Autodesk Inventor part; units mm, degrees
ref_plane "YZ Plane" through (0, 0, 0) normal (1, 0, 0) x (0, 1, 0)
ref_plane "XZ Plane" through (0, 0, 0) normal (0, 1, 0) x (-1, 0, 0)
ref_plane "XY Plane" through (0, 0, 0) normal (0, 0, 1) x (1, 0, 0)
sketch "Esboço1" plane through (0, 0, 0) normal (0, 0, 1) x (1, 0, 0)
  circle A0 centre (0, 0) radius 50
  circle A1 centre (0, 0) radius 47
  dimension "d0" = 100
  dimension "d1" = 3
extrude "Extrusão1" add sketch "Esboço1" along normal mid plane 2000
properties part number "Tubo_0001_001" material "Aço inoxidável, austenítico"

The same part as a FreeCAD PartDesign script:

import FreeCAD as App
import Part
import Sketcher
from FreeCAD import Vector
Q = App.Units.Quantity

doc = App.newDocument("Part")
body = doc.addObject("PartDesign::Body", "Body")

# Sketch on XY plane
sketch1 = body.newObject("Sketcher::SketchObject", "Sketch")
sketch1.AttachmentSupport = (doc.getObject("XY_Plane"), [""])
sketch1.MapMode = "FlatFace"
sketch1.addGeometry(Part.Circle(Vector(0, 0, 0), Vector(0, 0, 1), 50), False)
sketch1.addGeometry(Part.Circle(Vector(0, 0, 0), Vector(0, 0, 1), 47), False)
sketch1.addConstraint(Sketcher.Constraint("Coincident", 0, 3, -1, 1))
sketch1.addConstraint(Sketcher.Constraint("Coincident", 1, 3, -1, 1))
sketch1.addConstraint(Sketcher.Constraint("Diameter", 0, Q("100 mm")))
sketch1.addConstraint(Sketcher.Constraint("Diameter", 1, Q("94 mm")))
pad1 = body.newObject("PartDesign::Pad", "Pad")
pad1.Profile = sketch1
pad1.Length = 2000
pad1.Midplane = True

doc.recompute()
